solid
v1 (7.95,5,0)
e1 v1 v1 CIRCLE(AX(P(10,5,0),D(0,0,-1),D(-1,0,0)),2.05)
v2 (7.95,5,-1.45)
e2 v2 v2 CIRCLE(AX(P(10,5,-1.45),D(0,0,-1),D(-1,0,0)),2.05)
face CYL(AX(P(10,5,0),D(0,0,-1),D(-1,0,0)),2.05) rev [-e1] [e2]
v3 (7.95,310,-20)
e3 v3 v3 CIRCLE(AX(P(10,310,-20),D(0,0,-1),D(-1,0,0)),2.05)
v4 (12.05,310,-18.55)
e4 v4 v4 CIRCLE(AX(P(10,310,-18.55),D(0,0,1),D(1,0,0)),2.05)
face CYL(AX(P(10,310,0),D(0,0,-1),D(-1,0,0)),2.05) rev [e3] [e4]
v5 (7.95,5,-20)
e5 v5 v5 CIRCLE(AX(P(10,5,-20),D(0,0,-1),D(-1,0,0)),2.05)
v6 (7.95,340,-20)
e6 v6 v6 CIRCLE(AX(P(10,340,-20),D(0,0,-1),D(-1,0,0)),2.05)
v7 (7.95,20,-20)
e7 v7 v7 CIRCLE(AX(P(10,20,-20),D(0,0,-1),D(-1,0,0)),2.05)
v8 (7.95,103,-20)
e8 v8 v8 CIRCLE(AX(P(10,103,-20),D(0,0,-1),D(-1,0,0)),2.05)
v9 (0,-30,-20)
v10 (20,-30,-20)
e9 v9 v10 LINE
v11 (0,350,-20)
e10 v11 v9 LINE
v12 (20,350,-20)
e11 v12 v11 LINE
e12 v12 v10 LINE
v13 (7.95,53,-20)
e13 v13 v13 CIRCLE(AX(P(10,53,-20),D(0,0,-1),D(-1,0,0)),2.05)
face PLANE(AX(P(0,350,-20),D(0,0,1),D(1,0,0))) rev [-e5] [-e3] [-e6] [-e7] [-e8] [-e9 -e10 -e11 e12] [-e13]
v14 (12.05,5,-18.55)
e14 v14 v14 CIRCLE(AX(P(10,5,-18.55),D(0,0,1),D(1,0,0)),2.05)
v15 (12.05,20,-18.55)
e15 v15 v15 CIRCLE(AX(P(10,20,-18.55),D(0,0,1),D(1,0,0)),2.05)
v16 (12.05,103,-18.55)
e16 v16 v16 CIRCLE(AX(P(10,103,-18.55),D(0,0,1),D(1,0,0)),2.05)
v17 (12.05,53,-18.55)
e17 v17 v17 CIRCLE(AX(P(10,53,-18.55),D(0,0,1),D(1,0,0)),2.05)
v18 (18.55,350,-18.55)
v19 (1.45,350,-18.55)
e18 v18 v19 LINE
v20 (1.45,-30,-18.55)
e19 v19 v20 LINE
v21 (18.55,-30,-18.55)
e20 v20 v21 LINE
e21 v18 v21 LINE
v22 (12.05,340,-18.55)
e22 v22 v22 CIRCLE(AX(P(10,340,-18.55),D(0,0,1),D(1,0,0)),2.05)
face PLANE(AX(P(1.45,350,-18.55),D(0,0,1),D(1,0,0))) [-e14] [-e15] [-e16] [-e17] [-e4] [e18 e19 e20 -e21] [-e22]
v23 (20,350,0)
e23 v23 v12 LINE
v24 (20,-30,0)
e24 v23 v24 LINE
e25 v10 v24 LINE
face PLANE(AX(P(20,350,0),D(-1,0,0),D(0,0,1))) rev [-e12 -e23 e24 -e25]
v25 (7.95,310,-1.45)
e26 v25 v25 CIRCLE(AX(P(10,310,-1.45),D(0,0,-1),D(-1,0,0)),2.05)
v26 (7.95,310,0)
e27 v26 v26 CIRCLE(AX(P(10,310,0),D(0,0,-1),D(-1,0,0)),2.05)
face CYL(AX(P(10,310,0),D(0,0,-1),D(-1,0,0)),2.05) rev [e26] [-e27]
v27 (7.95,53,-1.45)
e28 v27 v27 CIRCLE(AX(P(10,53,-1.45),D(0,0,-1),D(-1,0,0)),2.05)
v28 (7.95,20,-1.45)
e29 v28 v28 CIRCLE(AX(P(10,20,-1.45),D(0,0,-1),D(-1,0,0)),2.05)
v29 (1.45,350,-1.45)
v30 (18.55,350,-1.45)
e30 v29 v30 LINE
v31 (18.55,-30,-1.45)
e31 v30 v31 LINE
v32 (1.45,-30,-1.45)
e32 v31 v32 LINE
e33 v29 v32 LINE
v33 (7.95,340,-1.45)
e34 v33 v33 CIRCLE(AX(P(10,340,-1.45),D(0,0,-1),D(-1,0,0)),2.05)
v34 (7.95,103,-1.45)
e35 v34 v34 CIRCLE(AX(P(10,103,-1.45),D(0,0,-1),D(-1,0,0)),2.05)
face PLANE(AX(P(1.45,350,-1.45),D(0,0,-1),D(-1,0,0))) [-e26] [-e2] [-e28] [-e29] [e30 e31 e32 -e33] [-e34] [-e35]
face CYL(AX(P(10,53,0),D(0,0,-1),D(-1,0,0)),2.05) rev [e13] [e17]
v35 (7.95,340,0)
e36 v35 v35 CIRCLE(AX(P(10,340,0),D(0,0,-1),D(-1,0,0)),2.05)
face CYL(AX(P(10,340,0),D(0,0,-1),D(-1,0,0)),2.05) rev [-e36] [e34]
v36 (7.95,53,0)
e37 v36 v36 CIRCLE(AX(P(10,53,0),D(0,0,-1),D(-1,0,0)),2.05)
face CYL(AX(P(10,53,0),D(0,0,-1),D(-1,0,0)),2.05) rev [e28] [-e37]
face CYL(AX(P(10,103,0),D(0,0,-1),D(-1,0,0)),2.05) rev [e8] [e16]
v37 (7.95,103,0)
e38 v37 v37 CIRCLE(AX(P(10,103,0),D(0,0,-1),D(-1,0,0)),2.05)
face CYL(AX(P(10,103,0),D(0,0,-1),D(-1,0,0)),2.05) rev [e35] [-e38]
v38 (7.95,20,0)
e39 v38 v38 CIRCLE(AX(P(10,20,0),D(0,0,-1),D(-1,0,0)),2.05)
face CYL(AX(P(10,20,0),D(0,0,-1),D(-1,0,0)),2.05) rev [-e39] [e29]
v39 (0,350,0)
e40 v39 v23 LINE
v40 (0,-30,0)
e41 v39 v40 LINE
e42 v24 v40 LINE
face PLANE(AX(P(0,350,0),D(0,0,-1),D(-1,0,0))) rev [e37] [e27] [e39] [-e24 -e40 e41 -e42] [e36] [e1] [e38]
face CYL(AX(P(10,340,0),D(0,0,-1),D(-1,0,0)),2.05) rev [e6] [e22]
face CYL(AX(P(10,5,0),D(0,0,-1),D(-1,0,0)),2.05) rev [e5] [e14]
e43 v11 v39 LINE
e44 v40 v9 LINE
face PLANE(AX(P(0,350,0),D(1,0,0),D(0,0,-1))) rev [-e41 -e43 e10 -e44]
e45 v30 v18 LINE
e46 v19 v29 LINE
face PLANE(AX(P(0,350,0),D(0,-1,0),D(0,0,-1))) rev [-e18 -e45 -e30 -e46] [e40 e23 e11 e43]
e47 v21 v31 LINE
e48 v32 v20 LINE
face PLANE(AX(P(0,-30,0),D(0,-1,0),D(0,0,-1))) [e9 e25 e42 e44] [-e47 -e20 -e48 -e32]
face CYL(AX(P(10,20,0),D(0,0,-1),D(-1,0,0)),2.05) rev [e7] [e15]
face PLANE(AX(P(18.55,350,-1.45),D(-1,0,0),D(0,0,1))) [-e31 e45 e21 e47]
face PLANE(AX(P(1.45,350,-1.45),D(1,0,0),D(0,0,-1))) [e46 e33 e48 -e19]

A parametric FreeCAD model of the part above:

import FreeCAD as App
import Part
import Sketcher
Q = App.Units.Quantity

doc = App.newDocument("Part")
body = doc.addObject("PartDesign::Body", "Body")

sketch1 = body.newObject("Sketcher::SketchObject", "Sketch")
sketch1.AttachmentSupport = (doc.getObject("XZ_Plane"), [""])
sketch1.MapMode = "FlatFace"
sketch1.addGeometry(Part.LineSegment(App.Vector(0, -20, 0), App.Vector(0, 0, 0)), False)
sketch1.addGeometry(Part.LineSegment(App.Vector(0, 0, 0), App.Vector(20, 0, 0)), False)
sketch1.addGeometry(Part.LineSegment(App.Vector(20, 0, 0), App.Vector(20, -20, 0)), False)
sketch1.addGeometry(Part.LineSegment(App.Vector(20, -20, 0), App.Vector(0, -20, 0)), False)
sketch1.addGeometry(Part.LineSegment(App.Vector(19, -1, 0), App.Vector(1, -1, 0)), False)
sketch1.addGeometry(Part.LineSegment(App.Vector(1, -1, 0), App.Vector(1, -19, 0)), False)
sketch1.addGeometry(Part.LineSegment(App.Vector(1, -19, 0), App.Vector(19, -19, 0)), False)
sketch1.addGeometry(Part.LineSegment(App.Vector(19, -19, 0), App.Vector(19, -1, 0)), False)
sketch1.addConstraint(Sketcher.Constraint("Coincident", 0, 2, 1, 1))
sketch1.addConstraint(Sketcher.Constraint("Coincident", 1, 2, 2, 1))
sketch1.addConstraint(Sketcher.Constraint("Coincident", 2, 2, 3, 1))
sketch1.addConstraint(Sketcher.Constraint("Coincident", 3, 2, 0, 1))
sketch1.addConstraint(Sketcher.Constraint("Coincident", 4, 2, 5, 1))
sketch1.addConstraint(Sketcher.Constraint("Coincident", 5, 2, 6, 1))
sketch1.addConstraint(Sketcher.Constraint("Coincident", 6, 2, 7, 1))
sketch1.addConstraint(Sketcher.Constraint("Coincident", 7, 2, 4, 1))
sketch1.addConstraint(Sketcher.Constraint("Vertical", 0))
sketch1.addConstraint(Sketcher.Constraint("Horizontal", 1))
sketch1.addConstraint(Sketcher.Constraint("Vertical", 2))
sketch1.addConstraint(Sketcher.Constraint("Horizontal", 3))
sketch1.addConstraint(Sketcher.Constraint("Horizontal", 4))
sketch1.addConstraint(Sketcher.Constraint("Vertical", 5))
sketch1.addConstraint(Sketcher.Constraint("Horizontal", 6))
sketch1.addConstraint(Sketcher.Constraint("Vertical", 7))
sketch1.addConstraint(Sketcher.Constraint("Coincident", 0, 2, -1, 1))
sketch1.addConstraint(Sketcher.Constraint("Equal", 3, 0))
sketch1.addConstraint(Sketcher.Constraint("Equal", 6, 5))
sketch1.addConstraint(Sketcher.Constraint("DistanceX", 1, 1, 1, 2, Q("20 mm")))
sketch1.addConstraint(Sketcher.Constraint("DistanceX", 4, 2, 4, 1, Q("17.1 mm")))
sketch1.addConstraint(Sketcher.Constraint("DistanceX", -1, 1, 4, 2, Q("1.45 mm")))
sketch1.addConstraint(Sketcher.Constraint("DistanceY", 4, 2, -1, 1, Q("1.45 mm")))
pad1 = body.newObject("PartDesign::Pad", "Pad")
pad1.Profile = sketch1
pad1.Length = 350
pad1.Reversed = True

sketch2 = body.newObject("Sketcher::SketchObject", "Sketch001")
sketch2.AttachmentSupport = (doc.getObject("XY_Plane"), [""])
sketch2.MapMode = "FlatFace"
sketch2.AttachmentOffset = App.Placement(App.Vector(0, 0, -20), App.Rotation())
sketch2.addGeometry(Part.Circle(App.Vector(10, 340, 0), App.Vector(0, 0, 1), 2), False)
sketch2.addGeometry(Part.Circle(App.Vector(10, 310, 0), App.Vector(0, 0, 1), 2), False)
sketch2.addGeometry(Part.Circle(App.Vector(10, 20, 0), App.Vector(0, 0, 1), 2), False)
sketch2.addGeometry(Part.Circle(App.Vector(10, 5, 0), App.Vector(0, 0, 1), 2), False)
sketch2.addConstraint(Sketcher.Constraint("Equal", 0, 1))
sketch2.addConstraint(Sketcher.Constraint("Equal", 1, 2))
sketch2.addConstraint(Sketcher.Constraint("Equal", 2, 3))
sketch2.addConstraint(Sketcher.Constraint("Vertical", 0, 3, 1, 3))
sketch2.addConstraint(Sketcher.Constraint("Vertical", 1, 3, 2, 3))
sketch2.addConstraint(Sketcher.Constraint("Vertical", 2, 3, 3, 3))
sketch2.addConstraint(Sketcher.Constraint("Diameter", 0, Q("4.1 mm")))
sketch2.addConstraint(Sketcher.Constraint("DistanceX", -1, 1, 0, 3, Q("10 mm")))
sketch2.addConstraint(Sketcher.Constraint("DistanceY", -1, 1, 0, 3, Q("340 mm")))
sketch2.addConstraint(Sketcher.Constraint("DistanceY", -1, 1, 1, 3, Q("310 mm")))
sketch2.addConstraint(Sketcher.Constraint("DistanceY", -1, 1, 2, 3, Q("20 mm")))
sketch2.addConstraint(Sketcher.Constraint("DistanceY", -1, 1, 3, 3, Q("5 mm")))
pocket1 = body.newObject("PartDesign::Pocket", "Pocket")
pocket1.Profile = sketch2
pocket1.Type = "ThroughAll"
pocket1.Reversed = True

sketch3 = body.newObject("Sketcher::SketchObject", "Sketch002")
sketch3.AttachmentSupport = (doc.getObject("XY_Plane"), [""])
sketch3.MapMode = "FlatFace"
sketch3.AttachmentOffset = App.Placement(App.Vector(0, 0, -20), App.Rotation())
sketch3.addGeometry(Part.Circle(App.Vector(10, 103, 0), App.Vector(0, 0, 1), 2), False)
sketch3.addGeometry(Part.Circle(App.Vector(10, 53, 0), App.Vector(0, 0, 1), 2), False)
sketch3.addConstraint(Sketcher.Constraint("Equal", 0, 1))
sketch3.addConstraint(Sketcher.Constraint("Vertical", 0, 3, 1, 3))
sketch3.addConstraint(Sketcher.Constraint("Diameter", 0, Q("4.1 mm")))
sketch3.addConstraint(Sketcher.Constraint("DistanceX", -1, 1, 0, 3, Q("10 mm")))
sketch3.addConstraint(Sketcher.Constraint("DistanceY", -1, 1, 0, 3, Q("103 mm")))
sketch3.addConstraint(Sketcher.Constraint("DistanceY", -1, 1, 1, 3, Q("53 mm")))
pocket2 = body.newObject("PartDesign::Pocket", "Pocket001")
pocket2.Profile = sketch3
pocket2.Type = "ThroughAll"
pocket2.Reversed = True

sketch4 = body.newObject("Sketcher::SketchObject", "Sketch003")
sketch4.AttachmentSupport = (doc.getObject("XZ_Plane"), [""])
sketch4.MapMode = "FlatFace"
sketch4.addGeometry(Part.LineSegment(App.Vector(0, 0, 0), App.Vector(0, -20, 0)), False)
sketch4.addGeometry(Part.LineSegment(App.Vector(0, -20, 0), App.Vector(20, -20, 0)), False)
sketch4.addGeometry(Part.LineSegment(App.Vector(20, -20, 0), App.Vector(20, 0, 0)), False)
sketch4.addGeometry(Part.LineSegment(App.Vector(20, 0, 0), App.Vector(0, 0, 0)), False)
sketch4.addGeometry(Part.LineSegment(App.Vector(19, -19, 0), App.Vector(1, -19, 0)), False)
sketch4.addGeometry(Part.LineSegment(App.Vector(1, -19, 0), App.Vector(1, -1, 0)), False)
sketch4.addGeometry(Part.LineSegment(App.Vector(1, -1, 0), App.Vector(19, -1, 0)), False)
sketch4.addGeometry(Part.LineSegment(App.Vector(19, -1, 0), App.Vector(19, -19, 0)), False)
sketch4.addConstraint(Sketcher.Constraint("Coincident", 0, 2, 1, 1))
sketch4.addConstraint(Sketcher.Constraint("Coincident", 1, 2, 2, 1))
sketch4.addConstraint(Sketcher.Constraint("Coincident", 2, 2, 3, 1))
sketch4.addConstraint(Sketcher.Constraint("Coincident", 3, 2, 0, 1))
sketch4.addConstraint(Sketcher.Constraint("Coincident", 4, 2, 5, 1))
sketch4.addConstraint(Sketcher.Constraint("Coincident", 5, 2, 6, 1))
sketch4.addConstraint(Sketcher.Constraint("Coincident", 6, 2, 7, 1))
sketch4.addConstraint(Sketcher.Constraint("Coincident", 7, 2, 4, 1))
sketch4.addConstraint(Sketcher.Constraint("Vertical", 0))
sketch4.addConstraint(Sketcher.Constraint("Horizontal", 1))
sketch4.addConstraint(Sketcher.Constraint("Vertical", 2))
sketch4.addConstraint(Sketcher.Constraint("Horizontal", 3))
sketch4.addConstraint(Sketcher.Constraint("Horizontal", 4))
sketch4.addConstraint(Sketcher.Constraint("Vertical", 5))
sketch4.addConstraint(Sketcher.Constraint("Horizontal", 6))
sketch4.addConstraint(Sketcher.Constraint("Vertical", 7))
sketch4.addConstraint(Sketcher.Constraint("Coincident", 3, 2, -1, 1))
sketch4.addConstraint(Sketcher.Constraint("Equal", 3, 0))
sketch4.addConstraint(Sketcher.Constraint("Equal", 6, 5))
sketch4.addConstraint(Sketcher.Constraint("DistanceX", 1, 1, 1, 2, Q("20 mm")))
sketch4.addConstraint(Sketcher.Constraint("DistanceX", 4, 2, 4, 1, Q("17.1 mm")))
sketch4.addConstraint(Sketcher.Constraint("DistanceX", -1, 1, 4, 2, Q("1.45 mm")))
sketch4.addConstraint(Sketcher.Constraint("DistanceY", 4, 2, -1, 1, Q("18.55 mm")))
pad2 = body.newObject("PartDesign::Pad", "Pad001")
pad2.Profile = sketch4
pad2.Length = 30

doc.recompute()
